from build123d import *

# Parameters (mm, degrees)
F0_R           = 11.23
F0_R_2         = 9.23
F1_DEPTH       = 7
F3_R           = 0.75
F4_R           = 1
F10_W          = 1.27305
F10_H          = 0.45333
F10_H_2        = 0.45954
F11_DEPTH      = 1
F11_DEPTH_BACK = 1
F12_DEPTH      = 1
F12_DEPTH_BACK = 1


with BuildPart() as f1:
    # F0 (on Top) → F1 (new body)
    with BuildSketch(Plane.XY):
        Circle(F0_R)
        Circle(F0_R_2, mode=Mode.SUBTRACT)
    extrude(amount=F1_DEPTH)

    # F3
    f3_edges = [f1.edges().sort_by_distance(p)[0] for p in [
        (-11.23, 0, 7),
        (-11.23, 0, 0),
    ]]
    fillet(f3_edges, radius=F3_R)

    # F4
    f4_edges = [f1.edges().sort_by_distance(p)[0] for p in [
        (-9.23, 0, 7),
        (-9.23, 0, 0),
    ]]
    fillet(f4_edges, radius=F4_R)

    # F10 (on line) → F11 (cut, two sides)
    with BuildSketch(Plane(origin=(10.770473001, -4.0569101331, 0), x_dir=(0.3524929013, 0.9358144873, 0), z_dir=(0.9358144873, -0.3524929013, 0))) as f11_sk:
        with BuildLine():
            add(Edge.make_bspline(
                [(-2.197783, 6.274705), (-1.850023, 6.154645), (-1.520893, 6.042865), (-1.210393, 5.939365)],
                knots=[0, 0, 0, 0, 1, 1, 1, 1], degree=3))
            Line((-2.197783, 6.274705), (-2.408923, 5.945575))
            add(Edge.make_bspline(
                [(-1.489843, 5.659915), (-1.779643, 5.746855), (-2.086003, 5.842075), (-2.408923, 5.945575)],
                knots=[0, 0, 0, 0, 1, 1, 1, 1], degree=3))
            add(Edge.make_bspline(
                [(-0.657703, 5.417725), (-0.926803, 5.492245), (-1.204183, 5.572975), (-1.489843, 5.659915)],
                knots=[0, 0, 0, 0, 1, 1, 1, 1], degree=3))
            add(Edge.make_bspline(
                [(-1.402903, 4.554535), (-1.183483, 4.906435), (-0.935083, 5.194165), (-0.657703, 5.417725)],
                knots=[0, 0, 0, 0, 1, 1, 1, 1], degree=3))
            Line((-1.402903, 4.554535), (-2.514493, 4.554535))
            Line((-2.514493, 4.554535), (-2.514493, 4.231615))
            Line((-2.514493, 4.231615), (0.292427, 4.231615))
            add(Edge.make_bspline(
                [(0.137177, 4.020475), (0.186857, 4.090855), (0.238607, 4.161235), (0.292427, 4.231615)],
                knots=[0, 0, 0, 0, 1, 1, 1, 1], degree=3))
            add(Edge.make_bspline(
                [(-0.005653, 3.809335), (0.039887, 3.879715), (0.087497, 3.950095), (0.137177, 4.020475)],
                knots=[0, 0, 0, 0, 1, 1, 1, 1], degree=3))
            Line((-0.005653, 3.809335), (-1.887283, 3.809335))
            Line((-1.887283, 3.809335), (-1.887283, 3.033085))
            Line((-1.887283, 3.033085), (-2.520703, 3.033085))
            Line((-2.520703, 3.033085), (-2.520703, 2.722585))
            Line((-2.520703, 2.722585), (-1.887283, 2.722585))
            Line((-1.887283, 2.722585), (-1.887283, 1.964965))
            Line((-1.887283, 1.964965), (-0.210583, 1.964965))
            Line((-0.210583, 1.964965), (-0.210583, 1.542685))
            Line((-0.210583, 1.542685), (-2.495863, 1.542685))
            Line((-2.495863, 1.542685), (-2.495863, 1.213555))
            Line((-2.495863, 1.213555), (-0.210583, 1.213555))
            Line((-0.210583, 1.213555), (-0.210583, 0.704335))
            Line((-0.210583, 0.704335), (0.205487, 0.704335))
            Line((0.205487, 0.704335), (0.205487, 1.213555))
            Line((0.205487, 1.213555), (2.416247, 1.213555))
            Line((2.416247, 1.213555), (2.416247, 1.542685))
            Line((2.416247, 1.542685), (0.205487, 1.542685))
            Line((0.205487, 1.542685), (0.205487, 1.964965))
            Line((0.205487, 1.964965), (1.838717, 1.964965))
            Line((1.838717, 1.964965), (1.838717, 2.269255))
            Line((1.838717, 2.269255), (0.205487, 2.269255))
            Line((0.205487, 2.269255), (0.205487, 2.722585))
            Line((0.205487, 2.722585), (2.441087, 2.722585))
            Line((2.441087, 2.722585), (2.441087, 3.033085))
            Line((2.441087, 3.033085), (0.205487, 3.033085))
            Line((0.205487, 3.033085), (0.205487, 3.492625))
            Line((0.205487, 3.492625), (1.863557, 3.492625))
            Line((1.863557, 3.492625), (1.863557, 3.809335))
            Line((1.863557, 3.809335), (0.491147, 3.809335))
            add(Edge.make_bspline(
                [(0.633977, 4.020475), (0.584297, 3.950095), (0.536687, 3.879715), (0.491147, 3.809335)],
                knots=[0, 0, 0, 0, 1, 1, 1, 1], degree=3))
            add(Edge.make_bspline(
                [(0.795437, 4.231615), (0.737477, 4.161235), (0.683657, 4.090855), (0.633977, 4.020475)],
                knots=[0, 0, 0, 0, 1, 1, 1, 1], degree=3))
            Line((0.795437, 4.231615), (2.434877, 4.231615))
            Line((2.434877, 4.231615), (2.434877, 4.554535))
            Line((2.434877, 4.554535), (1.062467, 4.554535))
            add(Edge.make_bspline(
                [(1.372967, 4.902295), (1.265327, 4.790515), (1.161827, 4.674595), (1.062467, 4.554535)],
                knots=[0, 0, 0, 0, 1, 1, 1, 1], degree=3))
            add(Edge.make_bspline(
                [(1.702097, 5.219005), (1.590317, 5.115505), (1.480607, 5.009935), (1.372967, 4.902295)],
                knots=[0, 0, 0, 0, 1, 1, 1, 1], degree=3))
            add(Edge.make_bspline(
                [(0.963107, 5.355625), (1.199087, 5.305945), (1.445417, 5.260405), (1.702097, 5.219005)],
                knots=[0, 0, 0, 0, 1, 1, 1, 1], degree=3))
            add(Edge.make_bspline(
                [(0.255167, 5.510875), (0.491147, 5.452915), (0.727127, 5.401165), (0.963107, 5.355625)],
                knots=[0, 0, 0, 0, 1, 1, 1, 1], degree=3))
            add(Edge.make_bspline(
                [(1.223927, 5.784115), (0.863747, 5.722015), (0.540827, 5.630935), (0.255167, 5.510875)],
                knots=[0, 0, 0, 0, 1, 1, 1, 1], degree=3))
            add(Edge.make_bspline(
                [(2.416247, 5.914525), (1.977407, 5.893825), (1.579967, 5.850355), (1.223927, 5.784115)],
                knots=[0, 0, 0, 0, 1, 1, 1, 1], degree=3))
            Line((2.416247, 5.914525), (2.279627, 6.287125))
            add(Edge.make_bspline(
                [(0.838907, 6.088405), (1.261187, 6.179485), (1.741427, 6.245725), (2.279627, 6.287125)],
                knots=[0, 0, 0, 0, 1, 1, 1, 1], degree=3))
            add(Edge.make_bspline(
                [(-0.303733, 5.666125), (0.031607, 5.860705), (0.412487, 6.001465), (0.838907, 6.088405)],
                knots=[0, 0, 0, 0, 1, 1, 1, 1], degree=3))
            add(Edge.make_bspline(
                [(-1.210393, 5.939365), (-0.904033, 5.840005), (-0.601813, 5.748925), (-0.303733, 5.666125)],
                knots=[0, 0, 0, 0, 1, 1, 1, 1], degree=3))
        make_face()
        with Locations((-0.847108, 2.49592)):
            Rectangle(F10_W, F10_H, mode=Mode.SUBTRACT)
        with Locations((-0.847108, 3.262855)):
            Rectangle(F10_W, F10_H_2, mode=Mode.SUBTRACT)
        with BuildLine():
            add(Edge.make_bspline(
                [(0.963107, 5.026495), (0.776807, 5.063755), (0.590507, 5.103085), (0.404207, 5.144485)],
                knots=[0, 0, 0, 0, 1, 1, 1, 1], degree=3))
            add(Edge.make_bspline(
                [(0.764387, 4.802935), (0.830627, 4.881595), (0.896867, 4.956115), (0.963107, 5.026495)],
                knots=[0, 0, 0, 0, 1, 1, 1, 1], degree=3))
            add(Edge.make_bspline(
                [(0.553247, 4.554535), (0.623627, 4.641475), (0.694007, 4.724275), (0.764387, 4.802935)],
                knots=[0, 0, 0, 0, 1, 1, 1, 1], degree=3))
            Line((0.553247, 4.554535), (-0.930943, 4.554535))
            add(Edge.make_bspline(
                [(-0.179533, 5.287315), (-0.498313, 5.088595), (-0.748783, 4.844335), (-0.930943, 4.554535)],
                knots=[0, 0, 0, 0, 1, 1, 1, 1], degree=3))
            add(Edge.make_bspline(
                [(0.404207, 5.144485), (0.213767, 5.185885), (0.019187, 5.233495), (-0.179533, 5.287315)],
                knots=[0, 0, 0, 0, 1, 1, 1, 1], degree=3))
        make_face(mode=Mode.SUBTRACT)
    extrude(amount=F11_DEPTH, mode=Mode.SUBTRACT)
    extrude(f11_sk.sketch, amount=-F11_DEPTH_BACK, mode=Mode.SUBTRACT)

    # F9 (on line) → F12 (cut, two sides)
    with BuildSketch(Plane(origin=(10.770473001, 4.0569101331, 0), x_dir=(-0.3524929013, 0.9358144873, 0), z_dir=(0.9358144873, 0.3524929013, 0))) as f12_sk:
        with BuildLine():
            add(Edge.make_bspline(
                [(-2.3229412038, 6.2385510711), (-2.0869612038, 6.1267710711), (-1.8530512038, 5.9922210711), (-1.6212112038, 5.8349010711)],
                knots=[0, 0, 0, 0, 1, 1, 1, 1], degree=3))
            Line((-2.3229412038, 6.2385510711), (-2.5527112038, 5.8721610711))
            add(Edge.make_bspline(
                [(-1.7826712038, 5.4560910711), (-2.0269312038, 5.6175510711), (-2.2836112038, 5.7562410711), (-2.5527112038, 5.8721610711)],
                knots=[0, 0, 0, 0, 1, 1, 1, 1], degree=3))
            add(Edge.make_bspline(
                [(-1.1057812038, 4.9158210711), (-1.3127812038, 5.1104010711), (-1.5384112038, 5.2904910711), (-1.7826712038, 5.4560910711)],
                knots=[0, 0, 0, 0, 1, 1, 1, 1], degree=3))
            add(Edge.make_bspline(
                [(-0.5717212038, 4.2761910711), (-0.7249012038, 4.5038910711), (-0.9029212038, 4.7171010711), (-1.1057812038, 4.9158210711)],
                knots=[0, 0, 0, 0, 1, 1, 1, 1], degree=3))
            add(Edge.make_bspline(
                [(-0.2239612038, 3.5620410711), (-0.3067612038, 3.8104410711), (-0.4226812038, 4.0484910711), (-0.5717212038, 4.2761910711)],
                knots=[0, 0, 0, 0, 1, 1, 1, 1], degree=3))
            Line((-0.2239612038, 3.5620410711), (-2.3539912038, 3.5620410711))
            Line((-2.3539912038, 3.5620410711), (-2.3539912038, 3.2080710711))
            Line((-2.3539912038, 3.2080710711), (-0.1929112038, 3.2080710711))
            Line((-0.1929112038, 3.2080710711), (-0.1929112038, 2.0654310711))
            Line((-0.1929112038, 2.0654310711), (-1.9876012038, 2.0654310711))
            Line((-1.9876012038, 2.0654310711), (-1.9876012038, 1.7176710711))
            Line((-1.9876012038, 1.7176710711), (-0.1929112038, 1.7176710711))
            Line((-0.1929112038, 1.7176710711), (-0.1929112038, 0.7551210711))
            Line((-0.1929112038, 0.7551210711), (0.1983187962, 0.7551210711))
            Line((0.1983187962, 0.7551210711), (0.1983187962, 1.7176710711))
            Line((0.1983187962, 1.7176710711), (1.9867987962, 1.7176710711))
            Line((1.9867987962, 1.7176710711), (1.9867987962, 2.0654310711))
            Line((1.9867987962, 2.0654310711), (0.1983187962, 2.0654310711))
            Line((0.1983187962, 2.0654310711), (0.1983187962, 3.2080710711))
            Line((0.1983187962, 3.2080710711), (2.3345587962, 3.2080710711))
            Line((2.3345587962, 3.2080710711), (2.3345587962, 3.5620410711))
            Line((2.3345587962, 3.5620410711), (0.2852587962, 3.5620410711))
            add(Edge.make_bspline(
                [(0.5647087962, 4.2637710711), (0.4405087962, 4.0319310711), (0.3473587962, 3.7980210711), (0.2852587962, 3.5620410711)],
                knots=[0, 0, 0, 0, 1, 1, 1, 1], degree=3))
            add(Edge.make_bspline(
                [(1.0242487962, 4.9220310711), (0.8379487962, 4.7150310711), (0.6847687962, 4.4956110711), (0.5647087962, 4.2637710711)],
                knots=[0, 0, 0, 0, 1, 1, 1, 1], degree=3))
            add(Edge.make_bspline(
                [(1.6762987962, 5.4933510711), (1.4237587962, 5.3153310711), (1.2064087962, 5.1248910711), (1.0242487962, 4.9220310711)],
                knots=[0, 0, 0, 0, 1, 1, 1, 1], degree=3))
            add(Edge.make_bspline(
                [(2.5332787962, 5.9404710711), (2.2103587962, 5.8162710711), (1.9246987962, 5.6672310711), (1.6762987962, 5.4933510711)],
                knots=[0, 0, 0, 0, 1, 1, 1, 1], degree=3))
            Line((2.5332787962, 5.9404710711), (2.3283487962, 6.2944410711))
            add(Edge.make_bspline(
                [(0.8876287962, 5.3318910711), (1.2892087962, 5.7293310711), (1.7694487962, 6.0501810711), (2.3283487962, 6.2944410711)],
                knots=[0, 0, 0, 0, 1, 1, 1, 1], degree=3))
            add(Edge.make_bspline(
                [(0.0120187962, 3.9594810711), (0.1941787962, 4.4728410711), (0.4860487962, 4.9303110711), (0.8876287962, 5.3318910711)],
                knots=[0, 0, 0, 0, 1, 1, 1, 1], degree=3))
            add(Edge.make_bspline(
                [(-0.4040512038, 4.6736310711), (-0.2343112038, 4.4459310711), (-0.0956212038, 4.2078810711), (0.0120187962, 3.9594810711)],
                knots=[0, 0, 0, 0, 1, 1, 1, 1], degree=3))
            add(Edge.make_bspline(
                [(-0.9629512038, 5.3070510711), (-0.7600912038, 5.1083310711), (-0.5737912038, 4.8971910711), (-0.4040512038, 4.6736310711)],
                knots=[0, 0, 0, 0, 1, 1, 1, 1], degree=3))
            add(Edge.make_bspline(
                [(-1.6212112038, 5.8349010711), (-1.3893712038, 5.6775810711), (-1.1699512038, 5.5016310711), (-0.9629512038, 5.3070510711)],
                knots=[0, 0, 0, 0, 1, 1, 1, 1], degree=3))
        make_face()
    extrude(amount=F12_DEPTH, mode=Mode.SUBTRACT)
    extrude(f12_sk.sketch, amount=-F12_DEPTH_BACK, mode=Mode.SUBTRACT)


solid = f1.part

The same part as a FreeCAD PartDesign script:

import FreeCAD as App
import Part
import Sketcher

V = App.Vector
Q = App.Units.Quantity


def edges_at(feature, points):
    """Names of the edges that pass closest to the given points."""
    edges = feature.Shape.Edges
    near = lambda p: min(range(len(edges)), key=lambda i: edges[i].distToShape(Part.Vertex(*p))[0])
    return sorted({f"Edge{near(p) + 1}" for p in points})

doc = App.newDocument("Part")
body = doc.addObject("PartDesign::Body", "Body")

sketch1 = body.newObject("Sketcher::SketchObject", "Sketch")
sketch1.AttachmentSupport = (doc.getObject("XY_Plane"), [""])
sketch1.MapMode = "FlatFace"
sketch1.addGeometry([
    Part.Circle(V(0, 0, 0), V(0, 0, 1), 11.23),
    Part.Circle(V(0, 0, 0), V(0, 0, 1), 9.23),
], False)
sketch1.addConstraint([
    Sketcher.Constraint("Coincident", 0, 3, -1, 1),
    Sketcher.Constraint("Coincident", 1, 3, -1, 1),
    Sketcher.Constraint("Diameter", 0, Q("22.46 mm")),
    Sketcher.Constraint("Diameter", 1, Q("18.46 mm")),
])
pad1 = body.newObject("PartDesign::Pad", "Pad")
pad1.Profile = sketch1
pad1.Length = 7
doc.recompute()

fillet = body.newObject("PartDesign::Fillet", "Fillet")
fillet.Base = (pad1, edges_at(pad1, [(-11.23, 0, 7), (-11.23, 0, 0)]))
fillet.Radius = 0.75
doc.recompute()

fillet2 = body.newObject("PartDesign::Fillet", "Fillet001")
fillet2.Base = (fillet, edges_at(fillet, [(-9.23, 0, 7), (-9.23, 0, 0)]))
fillet2.Radius = 1

sketch2 = body.newObject("Sketcher::SketchObject", "Sketch001")
sketch2.Placement = App.Placement(V(10.770473, -4.05691, 0), App.Rotation(V(0.352492901, 0.935814487, 0), V(0, 0, 0.999999999), V(0.935814487, -0.352492901, 0), "ZXY"))
sketch2.addGeometry([
    Part.BSplineCurve([V(-2.197783, 6.274705, 0), V(-1.850023, 6.154645, 0), V(-1.520893, 6.042865, 0), V(-1.210393, 5.939365, 0)], [4, 4], [0, 1], False, 3, [1, 1, 1, 1], False),
    Part.LineSegment(V(-2.197783, 6.274705, 0), V(-2.408923, 5.945575, 0)),
    Part.BSplineCurve([V(-1.489843, 5.659915, 0), V(-1.779643, 5.746855, 0), V(-2.086003, 5.842075, 0), V(-2.408923, 5.945575, 0)], [4, 4], [0, 1], False, 3, [1, 1, 1, 1], False),
    Part.BSplineCurve([V(-0.657703, 5.417725, 0), V(-0.926803, 5.492245, 0), V(-1.204183, 5.572975, 0), V(-1.489843, 5.659915, 0)], [4, 4], [0, 1], False, 3, [1, 1, 1, 1], False),
    Part.BSplineCurve([V(-1.402903, 4.554535, 0), V(-1.183483, 4.906435, 0), V(-0.935083, 5.194165, 0), V(-0.657703, 5.417725, 0)], [4, 4], [0, 1], False, 3, [1, 1, 1, 1], False),
    Part.LineSegment(V(-1.402903, 4.554535, 0), V(-2.514493, 4.554535, 0)),
    Part.LineSegment(V(-2.514493, 4.554535, 0), V(-2.514493, 4.231615, 0)),
    Part.LineSegment(V(-2.514493, 4.231615, 0), V(0.292427, 4.231615, 0)),
    Part.BSplineCurve([V(-0.005653, 3.809335, 0), V(0.085427, 3.950095, 0), V(0.184787, 4.090855, 0), V(0.292427, 4.231615, 0)], [4, 4], [0, 2], False, 3, [1, 1, 1, 1], False),
    Part.LineSegment(V(-0.005653, 3.809335, 0), V(-1.887283, 3.809335, 0)),
    Part.LineSegment(V(-1.887283, 3.809335, 0), V(-1.887283, 3.033085, 0)),
    Part.LineSegment(V(-1.887283, 3.033085, 0), V(-2.520703, 3.033085, 0)),
    Part.LineSegment(V(-2.520703, 3.033085, 0), V(-2.520703, 2.722585, 0)),
    Part.LineSegment(V(-2.520703, 2.722585, 0), V(-1.887283, 2.722585, 0)),
    Part.LineSegment(V(-1.887283, 2.722585, 0), V(-1.887283, 1.964965, 0)),
    Part.LineSegment(V(-1.887283, 1.964965, 0), V(-0.210583, 1.964965, 0)),
    Part.LineSegment(V(-0.210583, 1.964965, 0), V(-0.210583, 1.542685, 0)),
    Part.LineSegment(V(-0.210583, 1.542685, 0), V(-2.495863, 1.542685, 0)),
    Part.LineSegment(V(-2.495863, 1.542685, 0), V(-2.495863, 1.213555, 0)),
    Part.LineSegment(V(-2.495863, 1.213555, 0), V(-0.210583, 1.213555, 0)),
    Part.LineSegment(V(-0.210583, 1.213555, 0), V(-0.210583, 0.704335, 0)),
    Part.LineSegment(V(-0.210583, 0.704335, 0), V(0.205487, 0.704335, 0)),
    Part.LineSegment(V(0.205487, 0.704335, 0), V(0.205487, 1.213555, 0)),
    Part.LineSegment(V(0.205487, 1.213555, 0), V(2.416247, 1.213555, 0)),
    Part.LineSegment(V(2.416247, 1.213555, 0), V(2.416247, 1.542685, 0)),
    Part.LineSegment(V(2.416247, 1.542685, 0), V(0.205487, 1.542685, 0)),
    Part.LineSegment(V(0.205487, 1.542685, 0), V(0.205487, 1.964965, 0)),
    Part.LineSegment(V(0.205487, 1.964965, 0), V(1.838717, 1.964965, 0)),
    Part.LineSegment(V(1.838717, 1.964965, 0), V(1.838717, 2.269255, 0)),
    Part.LineSegment(V(1.838717, 2.269255, 0), V(0.205487, 2.269255, 0)),
    Part.LineSegment(V(0.205487, 2.269255, 0), V(0.205487, 2.722585, 0)),
    Part.LineSegment(V(0.205487, 2.722585, 0), V(2.441087, 2.722585, 0)),
    Part.LineSegment(V(2.441087, 2.722585, 0), V(2.441087, 3.033085, 0)),
    Part.LineSegment(V(2.441087, 3.033085, 0), V(0.205487, 3.033085, 0)),
    Part.LineSegment(V(0.205487, 3.033085, 0), V(0.205487, 3.492625, 0)),
    Part.LineSegment(V(0.205487, 3.492625, 0), V(1.863557, 3.492625, 0)),
    Part.LineSegment(V(1.863557, 3.492625, 0), V(1.863557, 3.809335, 0)),
    Part.LineSegment(V(1.863557, 3.809335, 0), V(0.491147, 3.809335, 0)),
    Part.BSplineCurve([V(0.795437, 4.231615, 0), V(0.737477, 4.161235, 0), V(0.683657, 4.090855, 0), V(0.584297, 3.950095, 0), V(0.536687, 3.879715, 0), V(0.491147, 3.809335, 0)], [4, 2, 4], [0, 1, 2], False, 3, [1, 1, 1, 1, 1, 1], False),
    Part.LineSegment(V(0.795437, 4.231615, 0), V(2.434877, 4.231615, 0)),
    Part.LineSegment(V(2.434877, 4.231615, 0), V(2.434877, 4.554535, 0)),
    Part.LineSegment(V(2.434877, 4.554535, 0), V(1.062467, 4.554535, 0)),
    Part.BSplineCurve([V(1.372967, 4.902295, 0), V(1.265327, 4.790515, 0), V(1.161827, 4.674595, 0), V(1.062467, 4.554535, 0)], [4, 4], [0, 1], False, 3, [1, 1, 1, 1], False),
    Part.BSplineCurve([V(1.702097, 5.219005, 0), V(1.590317, 5.115505, 0), V(1.480607, 5.009935, 0), V(1.372967, 4.902295, 0)], [4, 4], [0, 1], False, 3, [1, 1, 1, 1], False),
    Part.BSplineCurve([V(0.963107, 5.355625, 0), V(1.199087, 5.305945, 0), V(1.445417, 5.260405, 0), V(1.702097, 5.219005, 0)], [4, 4], [0, 1], False, 3, [1, 1, 1, 1], False),
    Part.BSplineCurve([V(0.255167, 5.510875, 0), V(0.491147, 5.452915, 0), V(0.727127, 5.401165, 0), V(0.963107, 5.355625, 0)], [4, 4], [0, 1], False, 3, [1, 1, 1, 1], False),
    Part.BSplineCurve([V(1.223927, 5.784115, 0), V(0.863747, 5.722015, 0), V(0.540827, 5.630935, 0), V(0.255167, 5.510875, 0)], [4, 4], [0, 1], False, 3, [1, 1, 1, 1], False),
    Part.BSplineCurve([V(2.416247, 5.914525, 0), V(1.977407, 5.893825, 0), V(1.579967, 5.850355, 0), V(1.223927, 5.784115, 0)], [4, 4], [0, 1], False, 3, [1, 1, 1, 1], False),
    Part.LineSegment(V(2.416247, 5.914525, 0), V(2.279627, 6.287125, 0)),
    Part.BSplineCurve([V(0.838907, 6.088405, 0), V(1.261187, 6.179485, 0), V(1.741427, 6.245725, 0), V(2.279627, 6.287125, 0)], [4, 4], [0, 1], False, 3, [1, 1, 1, 1], False),
    Part.BSplineCurve([V(-0.303733, 5.666125, 0), V(0.031607, 5.860705, 0), V(0.412487, 6.001465, 0), V(0.838907, 6.088405, 0)], [4, 4], [0, 1], False, 3, [1, 1, 1, 1], False),
    Part.BSplineCurve([V(-1.210393, 5.939365, 0), V(-0.904033, 5.840005, 0), V(-0.601813, 5.748925, 0), V(-0.303733, 5.666125, 0)], [4, 4], [0, 1], False, 3, [1, 1, 1, 1], False),
    Part.LineSegment(V(-1.483633, 2.269255, 0), V(-1.483633, 2.722585, 0)),
    Part.LineSegment(V(-1.483633, 2.722585, 0), V(-0.210583, 2.722585, 0)),
    Part.LineSegment(V(-0.210583, 2.722585, 0), V(-0.210583, 2.269255, 0)),
    Part.LineSegment(V(-0.210583, 2.269255, 0), V(-1.483633, 2.269255, 0)),
    Part.LineSegment(V(-1.483633, 3.033085, 0), V(-1.483633, 3.492625, 0)),
    Part.LineSegment(V(-1.483633, 3.492625, 0), V(-0.210583, 3.492625, 0)),
    Part.LineSegment(V(-0.210583, 3.492625, 0), V(-0.210583, 3.033085, 0)),
    Part.LineSegment(V(-0.210583, 3.033085, 0), V(-1.483633, 3.033085, 0)),
    Part.BSplineCurve([V(0.764387, 4.802935, 0), V(0.830627, 4.881595, 0), V(0.896867, 4.956115, 0), V(0.963107, 5.026495, 0)], [4, 4], [0, 1], False, 3, [1, 1, 1, 1], False),
    Part.BSplineCurve([V(0.553247, 4.554535, 0), V(0.623627, 4.641475, 0), V(0.694007, 4.724275, 0), V(0.764387, 4.802935, 0)], [4, 4], [0, 1], False, 3, [1, 1, 1, 1], False),
    Part.LineSegment(V(0.553247, 4.554535, 0), V(-0.930943, 4.554535, 0)),
    Part.BSplineCurve([V(-0.179533, 5.287315, 0), V(-0.498313, 5.088595, 0), V(-0.748783, 4.844335, 0), V(-0.930943, 4.554535, 0)], [4, 4], [0, 1], False, 3, [1, 1, 1, 1], False),
    Part.BSplineCurve([V(0.404207, 5.144485, 0), V(0.213767, 5.185885, 0), V(0.019187, 5.233495, 0), V(-0.179533, 5.287315, 0)], [4, 4], [0, 1], False, 3, [1, 1, 1, 1], False),
    Part.BSplineCurve([V(0.963107, 5.026495, 0), V(0.776807, 5.063755, 0), V(0.590507, 5.103085, 0), V(0.404207, 5.144485, 0)], [4, 4], [0, 1], False, 3, [1, 1, 1, 1], False),
], False)
sketch2.addConstraint([
    Sketcher.Constraint("Block", 0),
    Sketcher.Constraint("Block", 2),
    Sketcher.Constraint("Block", 3),
    Sketcher.Constraint("Block", 4),
    Sketcher.Constraint("Block", 8),
    Sketcher.Constraint("Block", 38),
    Sketcher.Constraint("Block", 42),
    Sketcher.Constraint("Block", 43),
    Sketcher.Constraint("Block", 44),
    Sketcher.Constraint("Block", 45),
    Sketcher.Constraint("Block", 46),
    Sketcher.Constraint("Block", 47),
    Sketcher.Constraint("Block", 49),
    Sketcher.Constraint("Block", 50),
    Sketcher.Constraint("Block", 51),
    Sketcher.Constraint("Block", 60),
    Sketcher.Constraint("Block", 61),
    Sketcher.Constraint("Block", 63),
    Sketcher.Constraint("Block", 64),
    Sketcher.Constraint("Block", 65),
    Sketcher.Constraint("Coincident", 0, 1, 1, 1),
    Sketcher.Constraint("Coincident", 1, 2, 2, 2),
    Sketcher.Constraint("Coincident", 4, 1, 5, 1),
    Sketcher.Constraint("Coincident", 5, 2, 6, 1),
    Sketcher.Constraint("Coincident", 6, 2, 7, 1),
    Sketcher.Constraint("Coincident", 7, 2, 8, 2),
    Sketcher.Constraint("Coincident", 8, 1, 9, 1),
    Sketcher.Constraint("Coincident", 9, 2, 10, 1),
    Sketcher.Constraint("Coincident", 10, 2, 11, 1),
    Sketcher.Constraint("Coincident", 11, 2, 12, 1),
    Sketcher.Constraint("Coincident", 12, 2, 13, 1),
    Sketcher.Constraint("Coincident", 13, 2, 14, 1),
    Sketcher.Constraint("Coincident", 14, 2, 15, 1),
    Sketcher.Constraint("Coincident", 15, 2, 16, 1),
    Sketcher.Constraint("Coincident", 16, 2, 17, 1),
    Sketcher.Constraint("Coincident", 17, 2, 18, 1),
    Sketcher.Constraint("Coincident", 18, 2, 19, 1),
    Sketcher.Constraint("Coincident", 19, 2, 20, 1),
    Sketcher.Constraint("Coincident", 20, 2, 21, 1),
    Sketcher.Constraint("Coincident", 21, 2, 22, 1),
    Sketcher.Constraint("Coincident", 22, 2, 23, 1),
    Sketcher.Constraint("Coincident", 23, 2, 24, 1),
    Sketcher.Constraint("Coincident", 24, 2, 25, 1),
    Sketcher.Constraint("Coincident", 25, 2, 26, 1),
    Sketcher.Constraint("Coincident", 26, 2, 27, 1),
    Sketcher.Constraint("Coincident", 27, 2, 28, 1),
    Sketcher.Constraint("Coincident", 28, 2, 29, 1),
    Sketcher.Constraint("Coincident", 29, 2, 30, 1),
    Sketcher.Constraint("Coincident", 30, 2, 31, 1),
    Sketcher.Constraint("Coincident", 31, 2, 32, 1),
    Sketcher.Constraint("Coincident", 32, 2, 33, 1),
    Sketcher.Constraint("Coincident", 33, 2, 34, 1),
    Sketcher.Constraint("Coincident", 34, 2, 35, 1),
    Sketcher.Constraint("Coincident", 35, 2, 36, 1),
    Sketcher.Constraint("Coincident", 36, 2, 37, 1),
    Sketcher.Constraint("Coincident", 37, 2, 38, 2),
    Sketcher.Constraint("Coincident", 38, 1, 39, 1),
    Sketcher.Constraint("Coincident", 39, 2, 40, 1),
    Sketcher.Constraint("Coincident", 40, 2, 41, 1),
    Sketcher.Constraint("Coincident", 41, 2, 42, 2),
    Sketcher.Constraint("Coincident", 47, 1, 48, 1),
    Sketcher.Constraint("Coincident", 48, 2, 49, 2),
    Sketcher.Constraint("Coincident", 52, 2, 53, 1),
    Sketcher.Constraint("Coincident", 53, 2, 54, 1),
    Sketcher.Constraint("Coincident", 54, 2, 55, 1),
    Sketcher.Constraint("Coincident", 55, 2, 52, 1),
    Sketcher.Constraint("Coincident", 56, 2, 57, 1),
    Sketcher.Constraint("Coincident", 57, 2, 58, 1),
    Sketcher.Constraint("Coincident", 58, 2, 59, 1),
    Sketcher.Constraint("Coincident", 59, 2, 56, 1),
    Sketcher.Constraint("Coincident", 61, 1, 62, 1),
    Sketcher.Constraint("Coincident", 62, 2, 63, 2),
    Sketcher.Constraint("Horizontal", 5),
    Sketcher.Constraint("Vertical", 6),
    Sketcher.Constraint("Horizontal", 7),
    Sketcher.Constraint("Horizontal", 9),
    Sketcher.Constraint("Vertical", 10),
    Sketcher.Constraint("Horizontal", 11),
    Sketcher.Constraint("Vertical", 12),
    Sketcher.Constraint("Horizontal", 13),
    Sketcher.Constraint("Vertical", 14),
    Sketcher.Constraint("Horizontal", 15),
    Sketcher.Constraint("Vertical", 16),
    Sketcher.Constraint("Horizontal", 17),
    Sketcher.Constraint("Vertical", 18),
    Sketcher.Constraint("Horizontal", 19),
    Sketcher.Constraint("Vertical", 20),
    Sketcher.Constraint("Horizontal", 21),
    Sketcher.Constraint("Vertical", 22),
    Sketcher.Constraint("Horizontal", 23),
    Sketcher.Constraint("Vertical", 24),
    Sketcher.Constraint("Horizontal", 25),
    Sketcher.Constraint("Vertical", 26),
    Sketcher.Constraint("Horizontal", 27),
    Sketcher.Constraint("Vertical", 28),
    Sketcher.Constraint("Horizontal", 29),
    Sketcher.Constraint("Vertical", 30),
    Sketcher.Constraint("Horizontal", 31),
    Sketcher.Constraint("Vertical", 32),
    Sketcher.Constraint("Horizontal", 33),
    Sketcher.Constraint("Vertical", 34),
    Sketcher.Constraint("Horizontal", 35),
    Sketcher.Constraint("Vertical", 36),
    Sketcher.Constraint("Horizontal", 37),
    Sketcher.Constraint("Horizontal", 39),
    Sketcher.Constraint("Vertical", 40),
    Sketcher.Constraint("Horizontal", 41),
    Sketcher.Constraint("Vertical", 52),
    Sketcher.Constraint("Horizontal", 53),
    Sketcher.Constraint("Vertical", 54),
    Sketcher.Constraint("Horizontal", 55),
    Sketcher.Constraint("Vertical", 56),
    Sketcher.Constraint("Horizontal", 57),
    Sketcher.Constraint("Vertical", 58),
    Sketcher.Constraint("Horizontal", 59),
    Sketcher.Constraint("Horizontal", 19, 2, 22, 2),
    Sketcher.Constraint("Horizontal", 17, 2, 24, 2),
    Sketcher.Constraint("Horizontal", 15, 2, 26, 2),
    Sketcher.Constraint("Horizontal", 13, 2, 30, 2),
    Sketcher.Constraint("Horizontal", 11, 2, 32, 2),
    Sketcher.Constraint("Horizontal", 31, 2, 52, 2),
    Sketcher.Constraint("Horizontal", 29, 2, 54, 2),
    Sketcher.Constraint("Horizontal", 35, 2, 56, 2),
    Sketcher.Constraint("Horizontal", 33, 2, 58, 2),
    Sketcher.Constraint("Vertical", 10, 2, 13, 2),
    Sketcher.Constraint("Vertical", 16, 2, 19, 2),
    Sketcher.Constraint("Vertical", 22, 2, 25, 2),
    Sketcher.Constraint("Vertical", 26, 2, 29, 2),
    Sketcher.Constraint("Vertical", 30, 2, 33, 2),
    Sketcher.Constraint("Vertical", 20, 2, 53, 2),
    Sketcher.Constraint("Vertical", 55, 2, 56, 2),
    Sketcher.Constraint("Vertical", 54, 2, 57, 2),
    Sketcher.Constraint("Equal", 37, 41),
    Sketcher.Constraint("DistanceX", 15, 1, 15, 2, Q("1.6767 mm")),
    Sketcher.Constraint("DistanceX", 31, 1, 31, 2, Q("2.2356 mm")),
    Sketcher.Constraint("DistanceY", 12, 2, 12, 1, Q("0.3105 mm")),
    Sketcher.Constraint("DistanceX", 5, 2, 5, 1, Q("1.11159 mm")),
    Sketcher.Constraint("DistanceX", 9, 2, 9, 1, Q("1.88163 mm")),
    Sketcher.Constraint("DistanceX", 11, 2, 11, 1, Q("0.63342 mm")),
    Sketcher.Constraint("DistanceX", 17, 2, 17, 1, Q("2.28528 mm")),
    Sketcher.Constraint("DistanceX", 21, 1, 21, 2, Q("0.41607 mm")),
    Sketcher.Constraint("DistanceX", 23, 1, 23, 2, Q("2.21076 mm")),
    Sketcher.Constraint("DistanceX", 27, 1, 27, 2, Q("1.63323 mm")),
    Sketcher.Constraint("DistanceX", 35, 1, 35, 2, Q("1.65807 mm")),
    Sketcher.Constraint("DistanceX", 53, 1, 53, 2, Q("1.27305 mm")),
    Sketcher.Constraint("DistanceY", 10, 2, 10, 1, Q("0.77625 mm")),
    Sketcher.Constraint("DistanceY", 14, 2, 14, 1, Q("0.75762 mm")),
    Sketcher.Constraint("DistanceY", 16, 2, 16, 1, Q("0.42228 mm")),
    Sketcher.Constraint("DistanceY", 18, 2, 18, 1, Q("0.32913 mm")),
    Sketcher.Constraint("DistanceY", 20, 2, 20, 1, Q("0.50922 mm")),
    Sketcher.Constraint("DistanceY", 28, 1, 28, 2, Q("0.30429 mm")),
    Sketcher.Constraint("DistanceY", 34, 1, 34, 2, Q("0.45954 mm")),
])
pocket1 = body.newObject("PartDesign::Pocket", "Pocket")
pocket1.Profile = sketch2
pocket1.Type = "TwoLengths"
pocket1.Length = 1
pocket1.Length2 = 1
pocket1.Reversed = True

sketch3 = body.newObject("Sketcher::SketchObject", "Sketch002")
sketch3.Placement = App.Placement(V(10.770473, 4.05691, 0), App.Rotation(V(-0.352492901, 0.935814487, 0), V(0, 0, 0.999999999), V(0.935814487, 0.352492901, 0), "ZXY"))
sketch3.addGeometry([
    Part.BSplineCurve([V(-2.322941, 6.238551, 0), V(-2.086961, 6.126771, 0), V(-1.853051, 5.992221, 0), V(-1.389371, 5.677581, 0), V(-1.169951, 5.501631, 0), V(-0.962951, 5.307051, 0)], [4, 2, 4], [0, 1, 2], False, 3, [1, 1, 1, 1, 1, 1], False),
    Part.LineSegment(V(-2.322941, 6.238551, 0), V(-2.552711, 5.872161, 0)),
    Part.BSplineCurve([V(-1.782671, 5.456091, 0), V(-2.026931, 5.617551, 0), V(-2.283611, 5.756241, 0), V(-2.552711, 5.872161, 0)], [4, 4], [0, 1], False, 3, [1, 1, 1, 1], False),
    Part.BSplineCurve([V(-1.105781, 4.915821, 0), V(-1.312781, 5.110401, 0), V(-1.538411, 5.290491, 0), V(-1.782671, 5.456091, 0)], [4, 4], [0, 1], False, 3, [1, 1, 1, 1], False),
    Part.BSplineCurve([V(-0.571721, 4.276191, 0), V(-0.724901, 4.503891, 0), V(-0.902921, 4.717101, 0), V(-1.105781, 4.915821, 0)], [4, 4], [0, 1], False, 3, [1, 1, 1, 1], False),
    Part.BSplineCurve([V(-0.223961, 3.562041, 0), V(-0.306761, 3.810441, 0), V(-0.422681, 4.048491, 0), V(-0.571721, 4.276191, 0)], [4, 4], [0, 1], False, 3, [1, 1, 1, 1], False),
    Part.LineSegment(V(-0.223961, 3.562041, 0), V(-2.353991, 3.562041, 0)),
    Part.LineSegment(V(-2.353991, 3.562041, 0), V(-2.353991, 3.208071, 0)),
    Part.LineSegment(V(-2.353991, 3.208071, 0), V(-0.192911, 3.208071, 0)),
    Part.LineSegment(V(-0.192911, 3.208071, 0), V(-0.192911, 2.065431, 0)),
    Part.LineSegment(V(-0.192911, 2.065431, 0), V(-1.987601, 2.065431, 0)),
    Part.LineSegment(V(-1.987601, 2.065431, 0), V(-1.987601, 1.717671, 0)),
    Part.LineSegment(V(-1.987601, 1.717671, 0), V(-0.192911, 1.717671, 0)),
    Part.LineSegment(V(-0.192911, 1.717671, 0), V(-0.192911, 0.755121, 0)),
    Part.LineSegment(V(-0.192911, 0.755121, 0), V(0.198319, 0.755121, 0)),
    Part.LineSegment(V(0.198319, 0.755121, 0), V(0.198319, 1.717671, 0)),
    Part.LineSegment(V(0.198319, 1.717671, 0), V(1.986799, 1.717671, 0)),
    Part.LineSegment(V(1.986799, 1.717671, 0), V(1.986799, 2.065431, 0)),
    Part.LineSegment(V(1.986799, 2.065431, 0), V(0.198319, 2.065431, 0)),
    Part.LineSegment(V(0.198319, 2.065431, 0), V(0.198319, 3.208071, 0)),
    Part.LineSegment(V(0.198319, 3.208071, 0), V(2.334559, 3.208071, 0)),
    Part.LineSegment(V(2.334559, 3.208071, 0), V(2.334559, 3.562041, 0)),
    Part.LineSegment(V(2.334559, 3.562041, 0), V(0.285259, 3.562041, 0)),
    Part.BSplineCurve([V(0.564709, 4.263771, 0), V(0.440509, 4.031931, 0), V(0.347359, 3.798021, 0), V(0.285259, 3.562041, 0)], [4, 4], [0, 1], False, 3, [1, 1, 1, 1], False),
    Part.BSplineCurve([V(1.024249, 4.922031, 0), V(0.837949, 4.715031, 0), V(0.684769, 4.495611, 0), V(0.564709, 4.263771, 0)], [4, 4], [0, 1], False, 3, [1, 1, 1, 1], False),
    Part.BSplineCurve([V(1.676299, 5.493351, 0), V(1.423759, 5.315331, 0), V(1.206409, 5.124891, 0), V(1.024249, 4.922031, 0)], [4, 4], [0, 1], False, 3, [1, 1, 1, 1], False),
    Part.BSplineCurve([V(2.533279, 5.940471, 0), V(2.210359, 5.816271, 0), V(1.924699, 5.667231, 0), V(1.676299, 5.493351, 0)], [4, 4], [0, 1], False, 3, [1, 1, 1, 1], False),
    Part.LineSegment(V(2.533279, 5.940471, 0), V(2.328349, 6.294441, 0)),
    Part.BSplineCurve([V(0.887629, 5.331891, 0), V(1.289209, 5.729331, 0), V(1.769449, 6.050181, 0), V(2.328349, 6.294441, 0)], [4, 4], [0, 1], False, 3, [1, 1, 1, 1], False),
    Part.BSplineCurve([V(0.012019, 3.959481, 0), V(0.194179, 4.472841, 0), V(0.486049, 4.930311, 0), V(0.887629, 5.331891, 0)], [4, 4], [0, 1], False, 3, [1, 1, 1, 1], False),
    Part.BSplineCurve([V(-0.404051, 4.673631, 0), V(-0.234311, 4.445931, 0), V(-0.095621, 4.207881, 0), V(0.012019, 3.959481, 0)], [4, 4], [0, 1], False, 3, [1, 1, 1, 1], False),
    Part.BSplineCurve([V(-0.962951, 5.307051, 0), V(-0.760091, 5.108331, 0), V(-0.573791, 4.897191, 0), V(-0.404051, 4.673631, 0)], [4, 4], [0, 1], False, 3, [1, 1, 1, 1], False),
], False)
sketch3.addConstraint([
    Sketcher.Constraint("Block", 0),
    Sketcher.Constraint("Block", 2),
    Sketcher.Constraint("Block", 3),
    Sketcher.Constraint("Block", 4),
    Sketcher.Constraint("Block", 5),
    Sketcher.Constraint("Block", 23),
    Sketcher.Constraint("Block", 24),
    Sketcher.Constraint("Block", 25),
    Sketcher.Constraint("Block", 26),
    Sketcher.Constraint("Block", 28),
    Sketcher.Constraint("Block", 29),
    Sketcher.Constraint("Block", 30),
    Sketcher.Constraint("Block", 31),
    Sketcher.Constraint("Coincident", 0, 1, 1, 1),
    Sketcher.Constraint("Coincident", 1, 2, 2, 2),
    Sketcher.Constraint("Coincident", 5, 1, 6, 1),
    Sketcher.Constraint("Coincident", 6, 2, 7, 1),
    Sketcher.Constraint("Coincident", 7, 2, 8, 1),
    Sketcher.Constraint("Coincident", 8, 2, 9, 1),
    Sketcher.Constraint("Coincident", 9, 2, 10, 1),
    Sketcher.Constraint("Coincident", 10, 2, 11, 1),
    Sketcher.Constraint("Coincident", 11, 2, 12, 1),
    Sketcher.Constraint("Coincident", 12, 2, 13, 1),
    Sketcher.Constraint("Coincident", 13, 2, 14, 1),
    Sketcher.Constraint("Coincident", 14, 2, 15, 1),
    Sketcher.Constraint("Coincident", 15, 2, 16, 1),
    Sketcher.Constraint("Coincident", 16, 2, 17, 1),
    Sketcher.Constraint("Coincident", 17, 2, 18, 1),
    Sketcher.Constraint("Coincident", 18, 2, 19, 1),
    Sketcher.Constraint("Coincident", 19, 2, 20, 1),
    Sketcher.Constraint("Coincident", 20, 2, 21, 1),
    Sketcher.Constraint("Coincident", 21, 2, 22, 1),
    Sketcher.Constraint("Coincident", 22, 2, 23, 2),
    Sketcher.Constraint("Coincident", 26, 1, 27, 1),
    Sketcher.Constraint("Coincident", 27, 2, 28, 2),
    Sketcher.Constraint("Horizontal", 6),
    Sketcher.Constraint("Vertical", 7),
    Sketcher.Constraint("Horizontal", 8),
    Sketcher.Constraint("Vertical", 9),
    Sketcher.Constraint("Horizontal", 10),
    Sketcher.Constraint("Vertical", 11),
    Sketcher.Constraint("Horizontal", 12),
    Sketcher.Constraint("Vertical", 13),
    Sketcher.Constraint("Horizontal", 14),
    Sketcher.Constraint("Vertical", 15),
    Sketcher.Constraint("Horizontal", 16),
    Sketcher.Constraint("Vertical", 17),
    Sketcher.Constraint("Horizontal", 18),
    Sketcher.Constraint("Vertical", 19),
    Sketcher.Constraint("Horizontal", 20),
    Sketcher.Constraint("Vertical", 21),
    Sketcher.Constraint("Horizontal", 22),
    Sketcher.Constraint("Horizontal", 12, 2, 15, 2),
    Sketcher.Constraint("Horizontal", 10, 2, 17, 2),
    Sketcher.Constraint("Horizontal", 8, 2, 19, 2),
    Sketcher.Constraint("Vertical", 9, 2, 12, 2),
    Sketcher.Constraint("Vertical", 15, 2, 18, 2),
    Sketcher.Constraint("DistanceX", 22, 2, 22, 1, Q("2.0493 mm")),
    Sketcher.Constraint("DistanceX", 6, 2, 6, 1, Q("2.13003 mm")),
    Sketcher.Constraint("DistanceX", 8, 1, 8, 2, Q("2.16108 mm")),
    Sketcher.Constraint("DistanceX", 10, 2, 10, 1, Q("1.79469 mm")),
    Sketcher.Constraint("DistanceX", 14, 1, 14, 2, Q("0.39123 mm")),
    Sketcher.Constraint("DistanceX", 16, 1, 16, 2, Q("1.78848 mm")),
    Sketcher.Constraint("DistanceY", 7, 2, 7, 1, Q("0.35397 mm")),
    Sketcher.Constraint("DistanceY", 9, 2, 9, 1, Q("1.14264 mm")),
    Sketcher.Constraint("DistanceY", 11, 2, 11, 1, Q("0.34776 mm")),
    Sketcher.Constraint("DistanceY", 13, 2, 13, 1, Q("0.96255 mm")),
])
pocket2 = body.newObject("PartDesign::Pocket", "Pocket001")
pocket2.Profile = sketch3
pocket2.Type = "TwoLengths"
pocket2.Length = 1
pocket2.Length2 = 1
pocket2.Reversed = True

doc.recompute()
